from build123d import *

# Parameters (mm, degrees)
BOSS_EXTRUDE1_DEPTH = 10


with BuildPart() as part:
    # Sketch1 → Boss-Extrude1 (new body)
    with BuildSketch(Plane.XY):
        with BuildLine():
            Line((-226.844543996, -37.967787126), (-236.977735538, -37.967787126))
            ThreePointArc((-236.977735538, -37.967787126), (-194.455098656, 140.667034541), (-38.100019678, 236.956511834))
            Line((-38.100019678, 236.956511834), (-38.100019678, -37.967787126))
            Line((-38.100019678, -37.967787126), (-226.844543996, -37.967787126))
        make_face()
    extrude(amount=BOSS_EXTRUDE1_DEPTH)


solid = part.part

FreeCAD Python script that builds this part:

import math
import FreeCAD as App
import Part
import Sketcher

V = App.Vector
Q = App.Units.Quantity

doc = App.newDocument("Part")
body = doc.addObject("PartDesign::Body", "Body")

# Sketch on XY plane
sketch1 = body.newObject("Sketcher::SketchObject", "Sketch")
sketch1.AttachmentSupport = (doc.getObject("XY_Plane"), [""])
sketch1.MapMode = "FlatFace"
sketch1.addGeometry([
    Part.ArcOfCircle(Part.Circle(V(0, 0, 0), V(0, 0, 1), 240), math.radians(99.134354), math.radians(189.102382)),
    Part.LineSegment(V(-236.977736, -37.967787, 0), V(-38.10002, -37.967787, 0)),
    Part.LineSegment(V(-38.10002, -37.967787, 0), V(-38.10002, 236.956512, 0)),
], False)
sketch1.addConstraint([
    Sketcher.Constraint("Coincident", 0, 2, 1, 1),
    Sketcher.Constraint("Coincident", 1, 2, 2, 1),
    Sketcher.Constraint("Coincident", 2, 2, 0, 1),
    Sketcher.Constraint("Horizontal", 1),
    Sketcher.Constraint("Vertical", 2),
    Sketcher.Constraint("Coincident", 0, 3, -1, 1),
    Sketcher.Constraint("Radius", 0, Q("240 mm")),
    Sketcher.Constraint("DistanceY", 2, 1, 2, 2, Q("274.924299 mm")),
    Sketcher.Constraint("DistanceX", 1, 1, 1, 2, Q("198.877716 mm")),
])
pad1 = body.newObject("PartDesign::Pad", "Pad")
pad1.Profile = sketch1
pad1.Length = 10

doc.recompute()
